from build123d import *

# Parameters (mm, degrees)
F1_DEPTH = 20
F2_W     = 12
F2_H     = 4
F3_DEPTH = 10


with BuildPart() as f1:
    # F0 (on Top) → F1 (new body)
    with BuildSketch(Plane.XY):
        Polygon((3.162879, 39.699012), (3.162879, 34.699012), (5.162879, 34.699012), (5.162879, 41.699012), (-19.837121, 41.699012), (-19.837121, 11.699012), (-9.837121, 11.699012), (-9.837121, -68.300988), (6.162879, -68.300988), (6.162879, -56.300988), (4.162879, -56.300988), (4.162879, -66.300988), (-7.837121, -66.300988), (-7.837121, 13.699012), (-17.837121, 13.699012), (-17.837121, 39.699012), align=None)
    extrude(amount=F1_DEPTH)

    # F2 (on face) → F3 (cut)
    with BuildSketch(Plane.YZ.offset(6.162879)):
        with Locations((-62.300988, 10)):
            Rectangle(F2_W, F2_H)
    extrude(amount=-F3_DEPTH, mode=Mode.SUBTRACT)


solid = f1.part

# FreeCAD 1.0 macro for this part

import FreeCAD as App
import Part
import Sketcher
Q = App.Units.Quantity

doc = App.newDocument("Part")
body = doc.addObject("PartDesign::Body", "Body")

# Sketch on XY plane
sketch1 = doc.addObject("Sketcher::SketchObject", "Sketch")
body.addObject(sketch1)
sketch1.AttachmentSupport = (doc.XY_Plane, [""])
sketch1.MapMode = "FlatFace"
sketch1.addGeometry([
    Part.LineSegment(App.Vector(3.162879, 39.699012, 0), App.Vector(3.162879, 34.699012, 0)),  # 0
    Part.LineSegment(App.Vector(3.162879, 34.699012, 0), App.Vector(5.162879, 34.699012, 0)),  # 1
    Part.LineSegment(App.Vector(5.162879, 34.699012, 0), App.Vector(5.162879, 41.699012, 0)),  # 2
    Part.LineSegment(App.Vector(5.162879, 41.699012, 0), App.Vector(-19.837121, 41.699012, 0)),  # 3
    Part.LineSegment(App.Vector(-19.837121, 41.699012, 0), App.Vector(-19.837121, 11.699012, 0)),  # 4
    Part.LineSegment(App.Vector(-19.837121, 11.699012, 0), App.Vector(-9.837121, 11.699012, 0)),  # 5
    Part.LineSegment(App.Vector(-9.837121, 11.699012, 0), App.Vector(-9.837121, -68.300988, 0)),  # 6
    Part.LineSegment(App.Vector(-9.837121, -68.300988, 0), App.Vector(6.162879, -68.300988, 0)),  # 7
    Part.LineSegment(App.Vector(6.162879, -68.300988, 0), App.Vector(6.162879, -56.300988, 0)),  # 8
    Part.LineSegment(App.Vector(6.162879, -56.300988, 0), App.Vector(4.162879, -56.300988, 0)),  # 9
    Part.LineSegment(App.Vector(4.162879, -56.300988, 0), App.Vector(4.162879, -66.300988, 0)),  # 10
    Part.LineSegment(App.Vector(4.162879, -66.300988, 0), App.Vector(-7.837121, -66.300988, 0)),  # 11
    Part.LineSegment(App.Vector(-7.837121, -66.300988, 0), App.Vector(-7.837121, 13.699012, 0)),  # 12
    Part.LineSegment(App.Vector(-7.837121, 13.699012, 0), App.Vector(-17.837121, 13.699012, 0)),  # 13
    Part.LineSegment(App.Vector(-17.837121, 13.699012, 0), App.Vector(-17.837121, 39.699012, 0)),  # 14
    Part.LineSegment(App.Vector(-17.837121, 39.699012, 0), App.Vector(3.162879, 39.699012, 0)),  # 15
], False)
sketch1.addConstraint([
    Sketcher.Constraint("Coincident", 0, 2, 1, 1),
    Sketcher.Constraint("Coincident", 1, 2, 2, 1),
    Sketcher.Constraint("Coincident", 2, 2, 3, 1),
    Sketcher.Constraint("Coincident", 3, 2, 4, 1),
    Sketcher.Constraint("Coincident", 4, 2, 5, 1),
    Sketcher.Constraint("Coincident", 5, 2, 6, 1),
    Sketcher.Constraint("Coincident", 6, 2, 7, 1),
    Sketcher.Constraint("Coincident", 7, 2, 8, 1),
    Sketcher.Constraint("Coincident", 8, 2, 9, 1),
    Sketcher.Constraint("Coincident", 9, 2, 10, 1),
    Sketcher.Constraint("Coincident", 10, 2, 11, 1),
    Sketcher.Constraint("Coincident", 11, 2, 12, 1),
    Sketcher.Constraint("Coincident", 12, 2, 13, 1),
    Sketcher.Constraint("Coincident", 13, 2, 14, 1),
    Sketcher.Constraint("Coincident", 14, 2, 15, 1),
    Sketcher.Constraint("Coincident", 15, 2, 0, 1),
    Sketcher.Constraint("Vertical", 0),
    Sketcher.Constraint("Horizontal", 1),
    Sketcher.Constraint("Vertical", 2),
    Sketcher.Constraint("Horizontal", 3),
    Sketcher.Constraint("Vertical", 4),
    Sketcher.Constraint("Horizontal", 5),
    Sketcher.Constraint("Vertical", 6),
    Sketcher.Constraint("Horizontal", 7),
    Sketcher.Constraint("Vertical", 8),
    Sketcher.Constraint("Horizontal", 9),
    Sketcher.Constraint("Vertical", 10),
    Sketcher.Constraint("Horizontal", 11),
    Sketcher.Constraint("Vertical", 12),
    Sketcher.Constraint("Horizontal", 13),
    Sketcher.Constraint("Vertical", 14),
    Sketcher.Constraint("Horizontal", 15),
    Sketcher.Constraint("Equal", 1, 9),
    Sketcher.Constraint("Equal", 5, 13),
    Sketcher.Constraint("Equal", 11, 8),
    Sketcher.Constraint("Equal", 13, 10),
    Sketcher.Constraint("Equal", 6, 12),
    Sketcher.Constraint("DistanceX", 1, 1, 1, 2, Q("2 mm")),
    Sketcher.Constraint("DistanceX", 3, 2, 3, 1, Q("25 mm")),
    Sketcher.Constraint("DistanceX", 5, 1, 5, 2, Q("10 mm")),
    Sketcher.Constraint("DistanceX", 7, 1, 7, 2, Q("16 mm")),
    Sketcher.Constraint("DistanceX", 11, 2, 11, 1, Q("12 mm")),
    Sketcher.Constraint("DistanceY", 0, 2, 0, 1, Q("5 mm")),
    Sketcher.Constraint("DistanceY", 2, 1, 2, 2, Q("7 mm")),
    Sketcher.Constraint("DistanceY", 4, 2, 4, 1, Q("30 mm")),
    Sketcher.Constraint("DistanceY", 6, 2, 6, 1, Q("80 mm")),
    Sketcher.Constraint("DistanceX", -1, 1, 0, 2, Q("3.162879 mm")),
    Sketcher.Constraint("DistanceY", 6, 2, -1, 1, Q("68.300988 mm")),
])
pad1 = doc.addObject("PartDesign::Pad", "Pad")
body.addObject(pad1)
pad1.Profile = sketch1
pad1.Length = 20

# Sketch on YZ plane
sketch2 = doc.addObject("Sketcher::SketchObject", "Sketch001")
body.addObject(sketch2)
sketch2.AttachmentSupport = (doc.YZ_Plane, [""])
sketch2.MapMode = "FlatFace"
sketch2.AttachmentOffset = App.Placement(App.Vector(0, 0, 6.162879), App.Rotation())
sketch2.addGeometry([
    Part.LineSegment(App.Vector(-68.300988, 12, 0), App.Vector(-68.300988, 8, 0)),
    Part.LineSegment(App.Vector(-68.300988, 8, 0), App.Vector(-56.300988, 8, 0)),
    Part.LineSegment(App.Vector(-56.300988, 8, 0), App.Vector(-56.300988, 12, 0)),
    Part.LineSegment(App.Vector(-56.300988, 12, 0), App.Vector(-68.300988, 12, 0)),
], False)
sketch2.addConstraint([
    Sketcher.Constraint("Coincident", 0, 2, 1, 1),
    Sketcher.Constraint("Coincident", 1, 2, 2, 1),
    Sketcher.Constraint("Coincident", 2, 2, 3, 1),
    Sketcher.Constraint("Coincident", 3, 2, 0, 1),
    Sketcher.Constraint("Vertical", 0),
    Sketcher.Constraint("Horizontal", 1),
    Sketcher.Constraint("Vertical", 2),
    Sketcher.Constraint("Horizontal", 3),
    Sketcher.Constraint("DistanceX", 1, 1, 1, 2, Q("12 mm")),
    Sketcher.Constraint("DistanceY", 0, 2, 0, 1, Q("4 mm")),
    Sketcher.Constraint("DistanceY", -1, 1, 0, 2, Q("8 mm")),
    Sketcher.Constraint("DistanceX", 0, 2, -1, 1, Q("68.300988 mm")),
])
pocket1 = doc.addObject("PartDesign::Pocket", "Pocket")
body.addObject(pocket1)
pocket1.Profile = sketch2
pocket1.Length = 10

doc.recompute()
